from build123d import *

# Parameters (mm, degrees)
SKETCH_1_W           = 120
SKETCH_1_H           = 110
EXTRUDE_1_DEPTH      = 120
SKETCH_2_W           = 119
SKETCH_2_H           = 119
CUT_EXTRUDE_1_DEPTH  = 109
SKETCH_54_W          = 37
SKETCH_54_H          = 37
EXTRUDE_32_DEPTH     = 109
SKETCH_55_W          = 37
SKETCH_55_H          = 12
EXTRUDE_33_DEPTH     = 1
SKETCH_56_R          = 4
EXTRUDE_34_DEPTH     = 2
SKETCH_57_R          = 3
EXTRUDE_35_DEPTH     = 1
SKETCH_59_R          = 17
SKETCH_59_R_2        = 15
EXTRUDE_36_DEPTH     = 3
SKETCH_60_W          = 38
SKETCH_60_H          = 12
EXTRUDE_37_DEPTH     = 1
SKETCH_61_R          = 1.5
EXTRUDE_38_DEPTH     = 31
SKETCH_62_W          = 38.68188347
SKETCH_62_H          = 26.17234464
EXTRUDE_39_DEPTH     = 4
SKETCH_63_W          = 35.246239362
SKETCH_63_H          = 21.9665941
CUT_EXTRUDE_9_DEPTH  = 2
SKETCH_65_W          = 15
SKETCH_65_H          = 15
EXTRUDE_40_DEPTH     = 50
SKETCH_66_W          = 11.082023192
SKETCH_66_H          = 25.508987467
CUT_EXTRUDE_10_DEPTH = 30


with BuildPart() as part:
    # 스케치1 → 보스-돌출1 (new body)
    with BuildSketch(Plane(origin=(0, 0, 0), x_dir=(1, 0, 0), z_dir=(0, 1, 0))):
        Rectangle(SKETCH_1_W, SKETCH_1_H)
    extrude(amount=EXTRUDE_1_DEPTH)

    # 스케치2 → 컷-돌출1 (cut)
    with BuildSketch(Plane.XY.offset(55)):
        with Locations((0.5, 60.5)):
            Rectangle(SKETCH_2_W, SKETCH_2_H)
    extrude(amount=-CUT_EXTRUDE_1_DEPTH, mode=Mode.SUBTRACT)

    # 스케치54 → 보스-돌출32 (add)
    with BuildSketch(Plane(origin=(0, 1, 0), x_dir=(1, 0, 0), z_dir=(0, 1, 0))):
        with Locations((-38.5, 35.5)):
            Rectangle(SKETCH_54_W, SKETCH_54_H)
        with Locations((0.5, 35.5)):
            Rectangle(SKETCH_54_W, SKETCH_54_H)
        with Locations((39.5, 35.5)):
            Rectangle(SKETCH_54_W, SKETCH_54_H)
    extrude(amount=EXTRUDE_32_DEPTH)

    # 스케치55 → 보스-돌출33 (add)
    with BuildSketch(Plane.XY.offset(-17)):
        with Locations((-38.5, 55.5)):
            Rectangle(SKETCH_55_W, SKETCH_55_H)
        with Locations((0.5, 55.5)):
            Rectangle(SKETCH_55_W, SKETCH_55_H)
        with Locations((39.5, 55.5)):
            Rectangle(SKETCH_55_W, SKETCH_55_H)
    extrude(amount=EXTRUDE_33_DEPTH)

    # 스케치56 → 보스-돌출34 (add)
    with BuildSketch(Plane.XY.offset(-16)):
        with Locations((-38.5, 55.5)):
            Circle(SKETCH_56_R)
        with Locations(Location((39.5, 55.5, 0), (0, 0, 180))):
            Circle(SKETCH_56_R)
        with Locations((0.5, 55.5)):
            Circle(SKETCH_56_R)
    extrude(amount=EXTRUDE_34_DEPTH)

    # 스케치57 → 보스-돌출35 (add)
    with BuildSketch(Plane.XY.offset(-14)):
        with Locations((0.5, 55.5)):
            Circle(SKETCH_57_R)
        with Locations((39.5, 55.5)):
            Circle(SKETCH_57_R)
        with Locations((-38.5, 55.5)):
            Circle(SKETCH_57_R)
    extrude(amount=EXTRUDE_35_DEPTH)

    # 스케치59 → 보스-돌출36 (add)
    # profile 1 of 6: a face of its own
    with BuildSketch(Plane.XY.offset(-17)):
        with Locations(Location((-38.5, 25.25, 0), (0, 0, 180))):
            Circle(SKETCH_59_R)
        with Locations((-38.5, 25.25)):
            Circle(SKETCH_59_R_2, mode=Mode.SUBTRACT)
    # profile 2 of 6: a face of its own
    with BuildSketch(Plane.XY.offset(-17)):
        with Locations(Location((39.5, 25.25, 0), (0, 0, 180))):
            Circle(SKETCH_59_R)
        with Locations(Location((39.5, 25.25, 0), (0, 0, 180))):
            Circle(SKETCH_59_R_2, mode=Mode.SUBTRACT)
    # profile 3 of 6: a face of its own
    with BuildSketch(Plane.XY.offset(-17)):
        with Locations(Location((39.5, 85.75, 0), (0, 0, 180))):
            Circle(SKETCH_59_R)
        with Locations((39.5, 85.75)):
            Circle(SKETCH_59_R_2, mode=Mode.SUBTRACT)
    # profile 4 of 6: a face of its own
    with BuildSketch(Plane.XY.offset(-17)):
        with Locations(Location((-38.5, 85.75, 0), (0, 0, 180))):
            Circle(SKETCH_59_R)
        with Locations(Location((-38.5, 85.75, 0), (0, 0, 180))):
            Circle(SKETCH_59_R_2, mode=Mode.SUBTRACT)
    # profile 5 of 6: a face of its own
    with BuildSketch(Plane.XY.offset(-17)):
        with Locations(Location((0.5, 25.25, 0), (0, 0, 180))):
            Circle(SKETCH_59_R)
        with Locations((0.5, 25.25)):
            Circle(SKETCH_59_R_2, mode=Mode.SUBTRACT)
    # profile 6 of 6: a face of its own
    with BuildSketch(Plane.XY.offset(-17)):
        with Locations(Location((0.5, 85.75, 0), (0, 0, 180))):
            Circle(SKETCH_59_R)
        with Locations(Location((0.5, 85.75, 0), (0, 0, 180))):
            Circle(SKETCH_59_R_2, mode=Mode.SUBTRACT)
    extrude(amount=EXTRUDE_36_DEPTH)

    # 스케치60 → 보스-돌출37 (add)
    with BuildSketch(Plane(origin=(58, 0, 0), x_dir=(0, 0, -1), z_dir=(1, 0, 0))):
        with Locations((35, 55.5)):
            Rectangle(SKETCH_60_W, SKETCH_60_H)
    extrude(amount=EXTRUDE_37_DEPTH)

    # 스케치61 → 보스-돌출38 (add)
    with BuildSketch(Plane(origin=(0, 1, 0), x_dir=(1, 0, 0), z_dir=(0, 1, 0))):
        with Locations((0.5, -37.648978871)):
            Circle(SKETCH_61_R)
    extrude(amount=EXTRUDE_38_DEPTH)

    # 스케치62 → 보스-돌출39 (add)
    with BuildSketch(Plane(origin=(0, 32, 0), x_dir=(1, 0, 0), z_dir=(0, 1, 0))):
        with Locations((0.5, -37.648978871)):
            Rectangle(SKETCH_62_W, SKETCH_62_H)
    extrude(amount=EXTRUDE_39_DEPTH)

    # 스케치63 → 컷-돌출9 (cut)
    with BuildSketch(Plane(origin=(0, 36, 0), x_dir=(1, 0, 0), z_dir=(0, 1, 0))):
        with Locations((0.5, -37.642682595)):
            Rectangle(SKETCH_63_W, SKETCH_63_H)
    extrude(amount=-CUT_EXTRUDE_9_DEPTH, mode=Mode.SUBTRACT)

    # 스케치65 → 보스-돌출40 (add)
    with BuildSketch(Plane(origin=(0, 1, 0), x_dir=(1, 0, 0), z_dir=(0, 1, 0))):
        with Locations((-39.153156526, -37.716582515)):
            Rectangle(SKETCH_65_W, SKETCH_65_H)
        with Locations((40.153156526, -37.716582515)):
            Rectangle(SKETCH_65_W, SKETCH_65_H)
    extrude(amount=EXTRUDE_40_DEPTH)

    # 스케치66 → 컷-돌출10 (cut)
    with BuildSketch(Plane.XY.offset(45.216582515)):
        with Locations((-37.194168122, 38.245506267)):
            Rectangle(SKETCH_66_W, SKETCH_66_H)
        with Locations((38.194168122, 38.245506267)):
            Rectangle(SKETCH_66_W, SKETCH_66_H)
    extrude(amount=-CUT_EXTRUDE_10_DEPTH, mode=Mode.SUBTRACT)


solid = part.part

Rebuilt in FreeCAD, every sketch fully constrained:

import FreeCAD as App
import Part
import Sketcher

V = App.Vector
Q = App.Units.Quantity


def add_polygon(sketch, points):
    """Adds a closed chain of lines whose ends are joined by coincident constraints."""
    first, n = sketch.GeometryCount, len(points)
    for a, b in zip(points, points[1:] + points[:1]):
        sketch.addGeometry(Part.LineSegment(App.Vector(*a, 0), App.Vector(*b, 0)), False)
    for i in range(n):
        sketch.addConstraint(Sketcher.Constraint("Coincident", first + i, 2, first + (i + 1) % n, 1))

doc = App.newDocument("Part")
body = doc.addObject("PartDesign::Body", "Body")

# Sketch on XZ plane
sketch1 = doc.addObject("Sketcher::SketchObject", "Sketch")
body.addObject(sketch1)
sketch1.AttachmentSupport = (doc.XZ_Plane, [""])
sketch1.MapMode = "FlatFace"
add_polygon(sketch1, [(-60, -55), (-60, 55), (60, 55), (60, -55)])  # lines 0-3
sketch1.addConstraint(Sketcher.Constraint("Vertical", 0))
sketch1.addConstraint(Sketcher.Constraint("Horizontal", 1))
sketch1.addConstraint(Sketcher.Constraint("Vertical", 2))
sketch1.addConstraint(Sketcher.Constraint("Horizontal", 3))
sketch1.addConstraint(Sketcher.Constraint("Symmetric", 0, 2, 2, 2, -1, 1))
sketch1.addConstraint(Sketcher.Constraint("DistanceX", 1, 1, 1, 2, Q("120 mm")))
sketch1.addConstraint(Sketcher.Constraint("DistanceY", 0, 1, 0, 2, Q("110 mm")))
pad1 = doc.addObject("PartDesign::Pad", "Pad")
body.addObject(pad1)
pad1.Profile = sketch1
pad1.Length = 120
pad1.Reversed = True

# Sketch on XY plane
sketch2 = doc.addObject("Sketcher::SketchObject", "Sketch001")
body.addObject(sketch2)
sketch2.AttachmentSupport = (doc.XY_Plane, [""])
sketch2.MapMode = "FlatFace"
sketch2.AttachmentOffset = App.Placement(V(0, 0, 55), App.Rotation())
add_polygon(sketch2, [(-59, 120), (-59, 1), (60, 1), (60, 120)])  # lines 0-3
sketch2.addConstraint(Sketcher.Constraint("Vertical", 0))
sketch2.addConstraint(Sketcher.Constraint("Horizontal", 1))
sketch2.addConstraint(Sketcher.Constraint("Vertical", 2))
sketch2.addConstraint(Sketcher.Constraint("Horizontal", 3))
sketch2.addConstraint(Sketcher.Constraint("Equal", 3, 0))
sketch2.addConstraint(Sketcher.Constraint("DistanceX", 1, 1, 1, 2, Q("119 mm")))
sketch2.addConstraint(Sketcher.Constraint("DistanceX", 0, 2, -1, 1, Q("59 mm")))
sketch2.addConstraint(Sketcher.Constraint("DistanceY", -1, 1, 0, 2, Q("1 mm")))
pocket1 = doc.addObject("PartDesign::Pocket", "Pocket")
body.addObject(pocket1)
pocket1.Profile = sketch2
pocket1.Length = 109

# Sketch on XZ plane
sketch3 = doc.addObject("Sketcher::SketchObject", "Sketch002")
body.addObject(sketch3)
sketch3.AttachmentSupport = (doc.XZ_Plane, [""])
sketch3.MapMode = "FlatFace"
sketch3.AttachmentOffset = App.Placement(V(0, 0, -1), App.Rotation())
add_polygon(sketch3, [(-57, -54), (-57, -17), (-20, -17), (-20, -54)])  # lines 0-3
add_polygon(sketch3, [(-18, -54), (-18, -17), (19, -17), (19, -54)])  # lines 4-7
add_polygon(sketch3, [(21, -54), (21, -17), (58, -17), (58, -54)])  # lines 8-11
sketch3.addConstraint(Sketcher.Constraint("Vertical", 0))
sketch3.addConstraint(Sketcher.Constraint("Horizontal", 1))
sketch3.addConstraint(Sketcher.Constraint("Vertical", 2))
sketch3.addConstraint(Sketcher.Constraint("Horizontal", 3))
sketch3.addConstraint(Sketcher.Constraint("Vertical", 4))
sketch3.addConstraint(Sketcher.Constraint("Horizontal", 5))
sketch3.addConstraint(Sketcher.Constraint("Vertical", 6))
sketch3.addConstraint(Sketcher.Constraint("Horizontal", 7))
sketch3.addConstraint(Sketcher.Constraint("Vertical", 8))
sketch3.addConstraint(Sketcher.Constraint("Horizontal", 9))
sketch3.addConstraint(Sketcher.Constraint("Vertical", 10))
sketch3.addConstraint(Sketcher.Constraint("Horizontal", 11))
sketch3.addConstraint(Sketcher.Constraint("Horizontal", 1, 2, 4, 2))
sketch3.addConstraint(Sketcher.Constraint("Horizontal", 3, 2, 6, 2))
sketch3.addConstraint(Sketcher.Constraint("Horizontal", 5, 2, 8, 2))
sketch3.addConstraint(Sketcher.Constraint("Horizontal", 7, 2, 10, 2))
sketch3.addConstraint(Sketcher.Constraint("Equal", 3, 5))
sketch3.addConstraint(Sketcher.Constraint("Equal", 7, 9))
sketch3.addConstraint(Sketcher.Constraint("Equal", 11, 0))
sketch3.addConstraint(Sketcher.Constraint("DistanceX", 1, 1, 1, 2, Q("37 mm")))
sketch3.addConstraint(Sketcher.Constraint("DistanceX", 0, 2, -1, 1, Q("57 mm")))
sketch3.addConstraint(Sketcher.Constraint("DistanceY", 0, 2, -1, 1, Q("17 mm")))
sketch3.addConstraint(Sketcher.Constraint("DistanceX", 4, 2, -1, 1, Q("18 mm")))
sketch3.addConstraint(Sketcher.Constraint("DistanceX", -1, 1, 8, 2, Q("21 mm")))
pad2 = doc.addObject("PartDesign::Pad", "Pad001")
body.addObject(pad2)
pad2.Profile = sketch3
pad2.Length = 109
pad2.Reversed = True

# Sketch on XY plane
sketch4 = doc.addObject("Sketcher::SketchObject", "Sketch003")
body.addObject(sketch4)
sketch4.AttachmentSupport = (doc.XY_Plane, [""])
sketch4.MapMode = "FlatFace"
sketch4.AttachmentOffset = App.Placement(V(0, 0, -17), App.Rotation())
add_polygon(sketch4, [(-57, 62), (-57, 50), (-20, 50), (-20, 62)])  # lines 0-3
add_polygon(sketch4, [(-18, 62), (-18, 50), (19, 50), (19, 62)])  # lines 4-7
add_polygon(sketch4, [(21, 62), (21, 50), (58, 50), (58, 62)])  # lines 8-11
sketch4.addConstraint(Sketcher.Constraint("Vertical", 0))
sketch4.addConstraint(Sketcher.Constraint("Horizontal", 1))
sketch4.addConstraint(Sketcher.Constraint("Vertical", 2))
sketch4.addConstraint(Sketcher.Constraint("Horizontal", 3))
sketch4.addConstraint(Sketcher.Constraint("Vertical", 4))
sketch4.addConstraint(Sketcher.Constraint("Horizontal", 5))
sketch4.addConstraint(Sketcher.Constraint("Vertical", 6))
sketch4.addConstraint(Sketcher.Constraint("Horizontal", 7))
sketch4.addConstraint(Sketcher.Constraint("Vertical", 8))
sketch4.addConstraint(Sketcher.Constraint("Horizontal", 9))
sketch4.addConstraint(Sketcher.Constraint("Vertical", 10))
sketch4.addConstraint(Sketcher.Constraint("Horizontal", 11))
sketch4.addConstraint(Sketcher.Constraint("Horizontal", 1, 2, 4, 2))
sketch4.addConstraint(Sketcher.Constraint("Horizontal", 3, 2, 6, 2))
sketch4.addConstraint(Sketcher.Constraint("Horizontal", 5, 2, 8, 2))
sketch4.addConstraint(Sketcher.Constraint("Horizontal", 7, 2, 10, 2))
sketch4.addConstraint(Sketcher.Constraint("Equal", 3, 5))
sketch4.addConstraint(Sketcher.Constraint("Equal", 7, 9))
sketch4.addConstraint(Sketcher.Constraint("DistanceX", 1, 1, 1, 2, Q("37 mm")))
sketch4.addConstraint(Sketcher.Constraint("DistanceY", 0, 2, 0, 1, Q("12 mm")))
sketch4.addConstraint(Sketcher.Constraint("DistanceX", 0, 2, -1, 1, Q("57 mm")))
sketch4.addConstraint(Sketcher.Constraint("DistanceX", 4, 2, -1, 1, Q("18 mm")))
sketch4.addConstraint(Sketcher.Constraint("DistanceX", -1, 1, 8, 2, Q("21 mm")))
sketch4.addConstraint(Sketcher.Constraint("DistanceY", -1, 1, 0, 2, Q("49.5 mm")))
pad3 = doc.addObject("PartDesign::Pad", "Pad002")
body.addObject(pad3)
pad3.Profile = sketch4
pad3.Length = 1

# Sketch on XY plane
sketch5 = doc.addObject("Sketcher::SketchObject", "Sketch004")
body.addObject(sketch5)
sketch5.AttachmentSupport = (doc.XY_Plane, [""])
sketch5.MapMode = "FlatFace"
sketch5.AttachmentOffset = App.Placement(V(0, 0, -16), App.Rotation())
sketch5.addGeometry(Part.Circle(V(-38.5, 55.5, 0), V(0, 0, 1), 4), False)
sketch5.addGeometry(Part.Circle(V(39.5, 55.5, 0), V(0, 0, 1), 4), False)
sketch5.addGeometry(Part.Circle(V(0.5, 55.5, 0), V(0, 0, 1), 4), False)
sketch5.addConstraint(Sketcher.Constraint("Equal", 0, 1))
sketch5.addConstraint(Sketcher.Constraint("Equal", 1, 2))
sketch5.addConstraint(Sketcher.Constraint("Horizontal", 0, 3, 1, 3))
sketch5.addConstraint(Sketcher.Constraint("Horizontal", 1, 3, 2, 3))
sketch5.addConstraint(Sketcher.Constraint("Diameter", 0, Q("8 mm")))
sketch5.addConstraint(Sketcher.Constraint("DistanceX", 0, 3, 1, 3, Q("78 mm")))
sketch5.addConstraint(Sketcher.Constraint("DistanceX", 0, 3, 2, 3, Q("39 mm")))
sketch5.addConstraint(Sketcher.Constraint("DistanceX", 0, 3, -1, 1, Q("38.5 mm")))
sketch5.addConstraint(Sketcher.Constraint("DistanceY", -1, 1, 0, 3, Q("55.5 mm")))
pad4 = doc.addObject("PartDesign::Pad", "Pad003")
body.addObject(pad4)
pad4.Profile = sketch5
pad4.Length = 2

# Sketch on XY plane
sketch6 = doc.addObject("Sketcher::SketchObject", "Sketch005")
body.addObject(sketch6)
sketch6.AttachmentSupport = (doc.XY_Plane, [""])
sketch6.MapMode = "FlatFace"
sketch6.AttachmentOffset = App.Placement(V(0, 0, -14), App.Rotation())
sketch6.addGeometry(Part.Circle(V(0.5, 55.5, 0), V(0, 0, 1), 3), False)
sketch6.addGeometry(Part.Circle(V(39.5, 55.5, 0), V(0, 0, 1), 3), False)
sketch6.addGeometry(Part.Circle(V(-38.5, 55.5, 0), V(0, 0, 1), 3), False)
sketch6.addConstraint(Sketcher.Constraint("Equal", 0, 1))
sketch6.addConstraint(Sketcher.Constraint("Equal", 1, 2))
sketch6.addConstraint(Sketcher.Constraint("Horizontal", 0, 3, 1, 3))
sketch6.addConstraint(Sketcher.Constraint("Horizontal", 1, 3, 2, 3))
sketch6.addConstraint(Sketcher.Constraint("Diameter", 0, Q("6 mm")))
sketch6.addConstraint(Sketcher.Constraint("DistanceX", 0, 3, 1, 3, Q("39 mm")))
sketch6.addConstraint(Sketcher.Constraint("DistanceX", 2, 3, 0, 3, Q("39 mm")))
sketch6.addConstraint(Sketcher.Constraint("DistanceX", -1, 1, 0, 3, Q("0.5 mm")))
sketch6.addConstraint(Sketcher.Constraint("DistanceY", -1, 1, 0, 3, Q("55.5 mm")))
pad5 = doc.addObject("PartDesign::Pad", "Pad004")
body.addObject(pad5)
pad5.Profile = sketch6
pad5.Length = 1

# Sketch on XY plane
sketch7 = doc.addObject("Sketcher::SketchObject", "Sketch006")
body.addObject(sketch7)
sketch7.AttachmentSupport = (doc.XY_Plane, [""])
sketch7.MapMode = "FlatFace"
sketch7.AttachmentOffset = App.Placement(V(0, 0, -17), App.Rotation())
sketch7.addGeometry(Part.Circle(V(-38, 25, 0), V(0, 0, 1), 17), False)
sketch7.addGeometry(Part.Circle(V(-38, 25, 0), V(0, 0, 1), 15), False)
sketch7.addGeometry(Part.Circle(V(40, 25, 0), V(0, 0, 1), 17), False)
sketch7.addGeometry(Part.Circle(V(40, 25, 0), V(0, 0, 1), 15), False)
sketch7.addGeometry(Part.Circle(V(40, 86, 0), V(0, 0, 1), 17), False)
sketch7.addGeometry(Part.Circle(V(40, 86, 0), V(0, 0, 1), 15), False)
sketch7.addGeometry(Part.Circle(V(-38, 86, 0), V(0, 0, 1), 17), False)
sketch7.addGeometry(Part.Circle(V(-38, 86, 0), V(0, 0, 1), 15), False)
sketch7.addGeometry(Part.Circle(V(0, 25, 0), V(0, 0, 1), 17), False)
sketch7.addGeometry(Part.Circle(V(0, 25, 0), V(0, 0, 1), 15), False)
sketch7.addGeometry(Part.Circle(V(0, 86, 0), V(0, 0, 1), 17), False)
sketch7.addGeometry(Part.Circle(V(0, 86, 0), V(0, 0, 1), 15), False)
sketch7.addConstraint(Sketcher.Constraint("Coincident", 1, 3, 0, 3))
sketch7.addConstraint(Sketcher.Constraint("Coincident", 3, 3, 2, 3))
sketch7.addConstraint(Sketcher.Constraint("Coincident", 5, 3, 4, 3))
sketch7.addConstraint(Sketcher.Constraint("Coincident", 7, 3, 6, 3))
sketch7.addConstraint(Sketcher.Constraint("Coincident", 9, 3, 8, 3))
sketch7.addConstraint(Sketcher.Constraint("Coincident", 11, 3, 10, 3))
sketch7.addConstraint(Sketcher.Constraint("Equal", 0, 2))
sketch7.addConstraint(Sketcher.Constraint("Equal", 1, 3))
sketch7.addConstraint(Sketcher.Constraint("Equal", 2, 4))
sketch7.addConstraint(Sketcher.Constraint("Equal", 3, 5))
sketch7.addConstraint(Sketcher.Constraint("Equal", 4, 6))
sketch7.addConstraint(Sketcher.Constraint("Equal", 5, 7))
sketch7.addConstraint(Sketcher.Constraint("Equal", 6, 8))
sketch7.addConstraint(Sketcher.Constraint("Equal", 7, 9))
sketch7.addConstraint(Sketcher.Constraint("Equal", 8, 10))
sketch7.addConstraint(Sketcher.Constraint("Equal", 9, 11))
sketch7.addConstraint(Sketcher.Constraint("Horizontal", 1, 3, 2, 3))
sketch7.addConstraint(Sketcher.Constraint("Horizontal", 5, 3, 6, 3))
sketch7.addConstraint(Sketcher.Constraint("Horizontal", 3, 3, 8, 3))
sketch7.addConstraint(Sketcher.Constraint("Horizontal", 7, 3, 10, 3))
sketch7.addConstraint(Sketcher.Constraint("Vertical", 3, 3, 4, 3))
sketch7.addConstraint(Sketcher.Constraint("Vertical", 1, 3, 6, 3))
sketch7.addConstraint(Sketcher.Constraint("Vertical", 9, 3, 10, 3))
sketch7.addConstraint(Sketcher.Constraint("Diameter", 0, Q("34 mm")))
sketch7.addConstraint(Sketcher.Constraint("Diameter", 1, Q("30 mm")))
sketch7.addConstraint(Sketcher.Constraint("DistanceX", 0, 3, 2, 3, Q("78 mm")))
sketch7.addConstraint(Sketcher.Constraint("DistanceX", 0, 3, 8, 3, Q("39 mm")))
sketch7.addConstraint(Sketcher.Constraint("DistanceX", 0, 3, -1, 1, Q("38.5 mm")))
sketch7.addConstraint(Sketcher.Constraint("DistanceY", 2, 3, 4, 3, Q("60.5 mm")))
sketch7.addConstraint(Sketcher.Constraint("DistanceY", -1, 1, 0, 3, Q("25.25 mm")))
pad6 = doc.addObject("PartDesign::Pad", "Pad005")
body.addObject(pad6)
pad6.Profile = sketch7
pad6.Length = 3

# Sketch on YZ plane
sketch8 = doc.addObject("Sketcher::SketchObject", "Sketch007")
body.addObject(sketch8)
sketch8.AttachmentSupport = (doc.YZ_Plane, [""])
sketch8.MapMode = "FlatFace"
sketch8.AttachmentOffset = App.Placement(V(0, 0, 58), App.Rotation())
add_polygon(sketch8, [(62, -16), (50, -16), (50, -54), (62, -54)])  # lines 0-3
sketch8.addConstraint(Sketcher.Constraint("Horizontal", 0))
sketch8.addConstraint(Sketcher.Constraint("Vertical", 1))
sketch8.addConstraint(Sketcher.Constraint("Horizontal", 2))
sketch8.addConstraint(Sketcher.Constraint("Vertical", 3))
sketch8.addConstraint(Sketcher.Constraint("DistanceX", 0, 2, 0, 1, Q("12 mm")))
sketch8.addConstraint(Sketcher.Constraint("DistanceY", 1, 2, 1, 1, Q("38 mm")))
sketch8.addConstraint(Sketcher.Constraint("DistanceY", 0, 2, -1, 1, Q("16 mm")))
sketch8.addConstraint(Sketcher.Constraint("DistanceX", -1, 1, 0, 2, Q("49.5 mm")))
pad7 = doc.addObject("PartDesign::Pad", "Pad006")
body.addObject(pad7)
pad7.Profile = sketch8
pad7.Length = 1

# Sketch on XZ plane
sketch9 = doc.addObject("Sketcher::SketchObject", "Sketch008")
body.addObject(sketch9)
sketch9.AttachmentSupport = (doc.XZ_Plane, [""])
sketch9.MapMode = "FlatFace"
sketch9.AttachmentOffset = App.Placement(V(0, 0, -1), App.Rotation())
sketch9.addGeometry(Part.Circle(V(0.5, 37.6, 0), V(0, 0, 1), 1.5), False)
sketch9.addConstraint(Sketcher.Constraint("Diameter", 0, Q("3 mm")))
sketch9.addConstraint(Sketcher.Constraint("DistanceX", -1, 1, 0, 3, Q("0.5 mm")))
sketch9.addConstraint(Sketcher.Constraint("DistanceY", -1, 1, 0, 3, Q("37.648979 mm")))
pad8 = doc.addObject("PartDesign::Pad", "Pad007")
body.addObject(pad8)
pad8.Profile = sketch9
pad8.Length = 31
pad8.Reversed = True

# Sketch on XZ plane
sketch10 = doc.addObject("Sketcher::SketchObject", "Sketch009")
body.addObject(sketch10)
sketch10.AttachmentSupport = (doc.XZ_Plane, [""])
sketch10.MapMode = "FlatFace"
sketch10.AttachmentOffset = App.Placement(V(0, 0, -32), App.Rotation())
add_polygon(sketch10, [(-19, 25), (-19, 51), (20, 51), (20, 25)])  # lines 0-3
sketch10.addConstraint(Sketcher.Constraint("Vertical", 0))
sketch10.addConstraint(Sketcher.Constraint("Horizontal", 1))
sketch10.addConstraint(Sketcher.Constraint("Vertical", 2))
sketch10.addConstraint(Sketcher.Constraint("Horizontal", 3))
sketch10.addConstraint(Sketcher.Constraint("DistanceX", 1, 1, 1, 2, Q("38.681883 mm")))
sketch10.addConstraint(Sketcher.Constraint("DistanceY", 0, 1, 0, 2, Q("26.172345 mm")))
sketch10.addConstraint(Sketcher.Constraint("DistanceX", 0, 2, -1, 1, Q("18.840942 mm")))
sketch10.addConstraint(Sketcher.Constraint("DistanceY", -1, 1, 0, 2, Q("50.735151 mm")))
pad9 = doc.addObject("PartDesign::Pad", "Pad008")
body.addObject(pad9)
pad9.Profile = sketch10
pad9.Length = 4
pad9.Reversed = True

# Sketch on XZ plane
sketch11 = doc.addObject("Sketcher::SketchObject", "Sketch010")
body.addObject(sketch11)
sketch11.AttachmentSupport = (doc.XZ_Plane, [""])
sketch11.MapMode = "FlatFace"
sketch11.AttachmentOffset = App.Placement(V(0, 0, -36), App.Rotation())
add_polygon(sketch11, [(-17, 27), (-17, 49), (18, 49), (18, 27)])  # lines 0-3
sketch11.addConstraint(Sketcher.Constraint("Vertical", 0))
sketch11.addConstraint(Sketcher.Constraint("Horizontal", 1))
sketch11.addConstraint(Sketcher.Constraint("Vertical", 2))
sketch11.addConstraint(Sketcher.Constraint("Horizontal", 3))
sketch11.addConstraint(Sketcher.Constraint("DistanceX", 1, 1, 1, 2, Q("35.246239 mm")))
sketch11.addConstraint(Sketcher.Constraint("DistanceY", 0, 1, 0, 2, Q("21.966594 mm")))
sketch11.addConstraint(Sketcher.Constraint("DistanceX", 0, 2, -1, 1, Q("17.12312 mm")))
sketch11.addConstraint(Sketcher.Constraint("DistanceY", -1, 1, 0, 2, Q("48.62598 mm")))
pocket2 = doc.addObject("PartDesign::Pocket", "Pocket001")
body.addObject(pocket2)
pocket2.Profile = sketch11
pocket2.Length = 2
pocket2.Reversed = True

# Sketch on XZ plane
sketch12 = doc.addObject("Sketcher::SketchObject", "Sketch011")
body.addObject(sketch12)
sketch12.AttachmentSupport = (doc.XZ_Plane, [""])
sketch12.MapMode = "FlatFace"
sketch12.AttachmentOffset = App.Placement(V(0, 0, -1), App.Rotation())
add_polygon(sketch12, [(-47, 30), (-47, 45), (-32, 45), (-32, 30)])  # lines 0-3
add_polygon(sketch12, [(33, 30), (33, 45), (48, 45), (48, 30)])  # lines 4-7
sketch12.addConstraint(Sketcher.Constraint("Vertical", 0))
sketch12.addConstraint(Sketcher.Constraint("Horizontal", 1))
sketch12.addConstraint(Sketcher.Constraint("Vertical", 2))
sketch12.addConstraint(Sketcher.Constraint("Horizontal", 3))
sketch12.addConstraint(Sketcher.Constraint("Vertical", 4))
sketch12.addConstraint(Sketcher.Constraint("Horizontal", 5))
sketch12.addConstraint(Sketcher.Constraint("Vertical", 6))
sketch12.addConstraint(Sketcher.Constraint("Horizontal", 7))
sketch12.addConstraint(Sketcher.Constraint("Horizontal", 1, 2, 4, 2))
sketch12.addConstraint(Sketcher.Constraint("Horizontal", 3, 2, 6, 2))
sketch12.addConstraint(Sketcher.Constraint("Equal", 3, 5))
sketch12.addConstraint(Sketcher.Constraint("Equal", 7, 0))
sketch12.addConstraint(Sketcher.Constraint("DistanceX", 1, 1, 1, 2, Q("15 mm")))
sketch12.addConstraint(Sketcher.Constraint("DistanceX", 0, 2, -1, 1, Q("46.653157 mm")))
sketch12.addConstraint(Sketcher.Constraint("DistanceY", -1, 1, 0, 2, Q("45.216583 mm")))
sketch12.addConstraint(Sketcher.Constraint("DistanceX", -1, 1, 4, 2, Q("32.653157 mm")))
pad10 = doc.addObject("PartDesign::Pad", "Pad009")
body.addObject(pad10)
pad10.Profile = sketch12
pad10.Length = 50
pad10.Reversed = True

# Sketch on XY plane
sketch13 = doc.addObject("Sketcher::SketchObject", "Sketch012")
body.addObject(sketch13)
sketch13.AttachmentSupport = (doc.XY_Plane, [""])
sketch13.MapMode = "FlatFace"
sketch13.AttachmentOffset = App.Placement(V(0, 0, 45.216583), App.Rotation())
add_polygon(sketch13, [(-43, 51), (-43, 25), (-32, 25), (-32, 51)])  # lines 0-3
add_polygon(sketch13, [(33, 51), (33, 25), (44, 25), (44, 51)])  # lines 4-7
sketch13.addConstraint(Sketcher.Constraint("Vertical", 0))
sketch13.addConstraint(Sketcher.Constraint("Horizontal", 1))
sketch13.addConstraint(Sketcher.Constraint("Vertical", 2))
sketch13.addConstraint(Sketcher.Constraint("Horizontal", 3))
sketch13.addConstraint(Sketcher.Constraint("Vertical", 4))
sketch13.addConstraint(Sketcher.Constraint("Horizontal", 5))
sketch13.addConstraint(Sketcher.Constraint("Vertical", 6))
sketch13.addConstraint(Sketcher.Constraint("Horizontal", 7))
sketch13.addConstraint(Sketcher.Constraint("Horizontal", 1, 2, 4, 2))
sketch13.addConstraint(Sketcher.Constraint("Horizontal", 3, 2, 6, 2))
sketch13.addConstraint(Sketcher.Constraint("Equal", 3, 5))
sketch13.addConstraint(Sketcher.Constraint("DistanceY", -1, 1, 2, 2, Q("51 mm")))
sketch13.addConstraint(Sketcher.Constraint("DistanceX", 1, 1, 1, 2, Q("11.082023 mm")))
sketch13.addConstraint(Sketcher.Constraint("DistanceY", 0, 2, 0, 1, Q("25.508987 mm")))
sketch13.addConstraint(Sketcher.Constraint("DistanceX", 0, 2, -1, 1, Q("42.73518 mm")))
sketch13.addConstraint(Sketcher.Constraint("DistanceX", -1, 1, 5, 2, Q("43.73518 mm")))
pocket3 = doc.addObject("PartDesign::Pocket", "Pocket002")
body.addObject(pocket3)
pocket3.Profile = sketch13
pocket3.Length = 30

doc.recompute()
